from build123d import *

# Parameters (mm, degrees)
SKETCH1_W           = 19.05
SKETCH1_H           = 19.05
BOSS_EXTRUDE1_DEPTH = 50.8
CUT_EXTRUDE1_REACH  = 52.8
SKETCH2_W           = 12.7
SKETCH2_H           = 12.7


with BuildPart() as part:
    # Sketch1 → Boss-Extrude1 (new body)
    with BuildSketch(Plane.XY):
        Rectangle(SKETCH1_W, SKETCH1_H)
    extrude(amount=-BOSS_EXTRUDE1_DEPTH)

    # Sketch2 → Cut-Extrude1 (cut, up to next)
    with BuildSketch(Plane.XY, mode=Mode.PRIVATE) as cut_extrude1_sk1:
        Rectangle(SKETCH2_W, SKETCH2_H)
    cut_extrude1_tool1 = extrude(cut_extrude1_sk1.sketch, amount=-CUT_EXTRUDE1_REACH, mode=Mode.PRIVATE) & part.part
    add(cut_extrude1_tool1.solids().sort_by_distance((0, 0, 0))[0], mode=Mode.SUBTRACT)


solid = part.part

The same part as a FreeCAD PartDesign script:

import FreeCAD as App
import Part
import Sketcher
from FreeCAD import Vector
Q = App.Units.Quantity

doc = App.newDocument("Part")
body = doc.addObject("PartDesign::Body", "Body")

# Sketch on XY plane
sketch1 = doc.addObject("Sketcher::SketchObject", "Sketch")
body.addObject(sketch1)
sketch1.AttachmentSupport = (doc.XY_Plane, [""])
sketch1.MapMode = "FlatFace"
sketch1.addGeometry([
    Part.LineSegment(Vector(-9.525, 9.525, 0), Vector(-9.525, -9.525, 0)),
    Part.LineSegment(Vector(-9.525, -9.525, 0), Vector(9.525, -9.525, 0)),
    Part.LineSegment(Vector(9.525, -9.525, 0), Vector(9.525, 9.525, 0)),
    Part.LineSegment(Vector(9.525, 9.525, 0), Vector(-9.525, 9.525, 0)),
], False)
sketch1.addConstraint([
    Sketcher.Constraint("Coincident", 0, 2, 1, 1),
    Sketcher.Constraint("Coincident", 1, 2, 2, 1),
    Sketcher.Constraint("Coincident", 2, 2, 3, 1),
    Sketcher.Constraint("Coincident", 3, 2, 0, 1),
    Sketcher.Constraint("Vertical", 0),
    Sketcher.Constraint("Horizontal", 1),
    Sketcher.Constraint("Vertical", 2),
    Sketcher.Constraint("Horizontal", 3),
    Sketcher.Constraint("Symmetric", 0, 2, 2, 2, -1, 1),
    Sketcher.Constraint("Equal", 3, 0),
    Sketcher.Constraint("DistanceX", 1, 1, 1, 2, Q("0.75 in")),
])
pad1 = doc.addObject("PartDesign::Pad", "Pad")
body.addObject(pad1)
pad1.Profile = sketch1
pad1.Length = Q("2 in")
pad1.Reversed = True

# Sketch on XY plane
sketch2 = doc.addObject("Sketcher::SketchObject", "Sketch001")
body.addObject(sketch2)
sketch2.AttachmentSupport = (doc.XY_Plane, [""])
sketch2.MapMode = "FlatFace"
sketch2.addGeometry([
    Part.LineSegment(Vector(-6.35, 6.35, 0), Vector(-6.35, -6.35, 0)),
    Part.LineSegment(Vector(-6.35, -6.35, 0), Vector(6.35, -6.35, 0)),
    Part.LineSegment(Vector(6.35, -6.35, 0), Vector(6.35, 6.35, 0)),
    Part.LineSegment(Vector(6.35, 6.35, 0), Vector(-6.35, 6.35, 0)),
], False)
sketch2.addConstraint([
    Sketcher.Constraint("Coincident", 0, 2, 1, 1),
    Sketcher.Constraint("Coincident", 1, 2, 2, 1),
    Sketcher.Constraint("Coincident", 2, 2, 3, 1),
    Sketcher.Constraint("Coincident", 3, 2, 0, 1),
    Sketcher.Constraint("Vertical", 0),
    Sketcher.Constraint("Horizontal", 1),
    Sketcher.Constraint("Vertical", 2),
    Sketcher.Constraint("Horizontal", 3),
    Sketcher.Constraint("Symmetric", 0, 2, 2, 2, -1, 1),
    Sketcher.Constraint("Equal", 3, 0),
    Sketcher.Constraint("DistanceX", 1, 1, 1, 2, Q("0.5 in")),
])
pocket1 = doc.addObject("PartDesign::Pocket", "Pocket")
body.addObject(pocket1)
pocket1.Profile = sketch2
pocket1.Type = "UpToFirst"

doc.recompute()
